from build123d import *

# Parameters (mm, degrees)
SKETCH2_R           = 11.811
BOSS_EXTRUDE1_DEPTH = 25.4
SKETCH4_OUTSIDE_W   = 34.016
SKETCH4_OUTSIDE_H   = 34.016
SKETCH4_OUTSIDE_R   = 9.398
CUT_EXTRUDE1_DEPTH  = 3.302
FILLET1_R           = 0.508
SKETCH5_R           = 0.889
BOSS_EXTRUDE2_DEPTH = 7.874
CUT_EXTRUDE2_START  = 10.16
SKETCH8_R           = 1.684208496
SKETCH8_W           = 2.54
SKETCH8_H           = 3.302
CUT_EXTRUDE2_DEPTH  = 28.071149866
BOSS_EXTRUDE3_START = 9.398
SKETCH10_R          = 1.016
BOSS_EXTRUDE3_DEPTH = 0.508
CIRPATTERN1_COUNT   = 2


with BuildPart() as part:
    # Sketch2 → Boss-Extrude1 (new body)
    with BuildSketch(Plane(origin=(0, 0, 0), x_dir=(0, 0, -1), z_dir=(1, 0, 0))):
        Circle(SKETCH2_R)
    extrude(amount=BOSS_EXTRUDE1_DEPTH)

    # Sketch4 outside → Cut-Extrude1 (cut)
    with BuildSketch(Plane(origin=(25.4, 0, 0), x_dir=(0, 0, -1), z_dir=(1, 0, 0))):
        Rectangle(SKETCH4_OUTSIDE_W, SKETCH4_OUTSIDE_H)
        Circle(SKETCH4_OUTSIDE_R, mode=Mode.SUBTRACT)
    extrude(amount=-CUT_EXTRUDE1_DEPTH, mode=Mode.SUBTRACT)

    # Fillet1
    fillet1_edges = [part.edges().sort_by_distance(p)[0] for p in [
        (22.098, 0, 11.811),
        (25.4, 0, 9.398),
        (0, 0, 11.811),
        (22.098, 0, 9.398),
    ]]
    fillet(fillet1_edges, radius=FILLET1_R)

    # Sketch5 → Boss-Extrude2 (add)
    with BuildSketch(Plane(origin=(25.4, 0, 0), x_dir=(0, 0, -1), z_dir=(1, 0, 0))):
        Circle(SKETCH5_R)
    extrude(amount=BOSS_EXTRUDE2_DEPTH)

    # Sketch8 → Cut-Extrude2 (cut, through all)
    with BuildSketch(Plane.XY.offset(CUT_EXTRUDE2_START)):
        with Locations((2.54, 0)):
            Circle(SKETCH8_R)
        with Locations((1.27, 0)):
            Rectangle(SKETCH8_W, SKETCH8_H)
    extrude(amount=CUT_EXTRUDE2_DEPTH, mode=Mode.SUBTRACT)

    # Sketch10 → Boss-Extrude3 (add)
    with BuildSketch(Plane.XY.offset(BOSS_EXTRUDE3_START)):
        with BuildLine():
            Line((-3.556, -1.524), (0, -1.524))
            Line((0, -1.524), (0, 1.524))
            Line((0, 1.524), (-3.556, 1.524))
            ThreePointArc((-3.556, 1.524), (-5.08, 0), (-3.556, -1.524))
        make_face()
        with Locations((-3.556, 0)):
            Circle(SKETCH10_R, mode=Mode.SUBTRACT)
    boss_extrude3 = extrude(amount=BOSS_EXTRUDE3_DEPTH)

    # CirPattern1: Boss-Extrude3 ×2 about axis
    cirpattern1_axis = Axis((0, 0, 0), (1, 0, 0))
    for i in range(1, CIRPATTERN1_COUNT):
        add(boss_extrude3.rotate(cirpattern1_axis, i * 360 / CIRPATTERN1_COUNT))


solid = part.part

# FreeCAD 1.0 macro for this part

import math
import FreeCAD as App
import Part
import Sketcher

V = App.Vector
Q = App.Units.Quantity


def edges_at(feature, points):
    """Names of the edges that pass closest to the given points."""
    edges = feature.Shape.Edges
    near = lambda p: min(range(len(edges)), key=lambda i: edges[i].distToShape(Part.Vertex(*p))[0])
    return sorted({f"Edge{near(p) + 1}" for p in points})


def add_polygon(sketch, points):
    """Adds a closed chain of lines whose ends are joined by coincident constraints."""
    first, n = sketch.GeometryCount, len(points)
    for a, b in zip(points, points[1:] + points[:1]):
        sketch.addGeometry(Part.LineSegment(App.Vector(*a, 0), App.Vector(*b, 0)), False)
    for i in range(n):
        sketch.addConstraint(Sketcher.Constraint("Coincident", first + i, 2, first + (i + 1) % n, 1))

doc = App.newDocument("Part")
body = doc.addObject("PartDesign::Body", "Body")

sketch1 = body.newObject("Sketcher::SketchObject", "Sketch")
sketch1.AttachmentSupport = (doc.getObject("YZ_Plane"), [""])
sketch1.MapMode = "FlatFace"
sketch1.addGeometry(Part.Circle(V(0, 0, 0), V(0, 0, 1), 11.811), False)
sketch1.addConstraint(Sketcher.Constraint("Coincident", 0, 3, -1, 1))
sketch1.addConstraint(Sketcher.Constraint("Diameter", 0, Q("0.93 in")))
pad1 = body.newObject("PartDesign::Pad", "Pad")
pad1.Profile = sketch1
pad1.Length = Q("1 in")

sketch2 = body.newObject("Sketcher::SketchObject", "Sketch001")
sketch2.AttachmentSupport = (doc.getObject("YZ_Plane"), [""])
sketch2.MapMode = "FlatFace"
sketch2.AttachmentOffset = App.Placement(V(0, 0, 1 * 25.4), App.Rotation())
add_polygon(sketch2, [(17.008, 17.008), (-17.008, 17.008), (-17.008, -17.008), (17.008, -17.008)])
sketch2.addGeometry(Part.Circle(V(0, 0, 0), V(0, 0, 1), 9.398), False)
sketch2.addConstraint(Sketcher.Constraint("Horizontal", 0))
sketch2.addConstraint(Sketcher.Constraint("Vertical", 1))
sketch2.addConstraint(Sketcher.Constraint("Horizontal", 2))
sketch2.addConstraint(Sketcher.Constraint("Vertical", 3))
sketch2.addConstraint(Sketcher.Constraint("Coincident", 4, 3, -1, 1))
sketch2.addConstraint(Sketcher.Constraint("Symmetric", 0, 2, 2, 2, -1, 1))
sketch2.addConstraint(Sketcher.Constraint("Equal", 2, 1))
sketch2.addConstraint(Sketcher.Constraint("Diameter", 4, Q("0.74 in")))
sketch2.addConstraint(Sketcher.Constraint("DistanceX", 0, 2, 0, 1, Q("34.016 mm")))
pocket1 = body.newObject("PartDesign::Pocket", "Pocket")
pocket1.Profile = sketch2
pocket1.Length = Q("0.13 in")
doc.recompute()

fillet = body.newObject("PartDesign::Fillet", "Fillet")
fillet.Base = (pocket1, edges_at(pocket1, [
    (22.098, 0, 11.811),
    (25.4, 0, 9.398),
    (0, 0, 11.811),
    (22.098, 0, 9.398),
]))
fillet.Radius = Q("0.02 in")

sketch3 = body.newObject("Sketcher::SketchObject", "Sketch002")
sketch3.AttachmentSupport = (doc.getObject("YZ_Plane"), [""])
sketch3.MapMode = "FlatFace"
sketch3.AttachmentOffset = App.Placement(V(0, 0, 1 * 25.4), App.Rotation())
sketch3.addGeometry(Part.Circle(V(0, 0, 0), V(0, 0, 1), 0.889), False)
sketch3.addConstraint(Sketcher.Constraint("Coincident", 0, 3, -1, 1))
sketch3.addConstraint(Sketcher.Constraint("Diameter", 0, Q("0.07 in")))
pad2 = body.newObject("PartDesign::Pad", "Pad001")
pad2.Profile = sketch3
pad2.Length = Q("0.31 in")

sketch4 = body.newObject("Sketcher::SketchObject", "Sketch003")
sketch4.AttachmentSupport = (doc.getObject("XY_Plane"), [""])
sketch4.MapMode = "FlatFace"
sketch4.AttachmentOffset = App.Placement(V(0, 0, 0.4 * 25.4), App.Rotation())
sketch4.addGeometry(Part.ArcOfCircle(Part.Circle(V(2.54, 0, 0), V(0, 0, 1), 1.684208), math.radians(-101.396736), math.radians(101.396736)), False)
sketch4.addGeometry(Part.LineSegment(V(2.207198, 1.651, 0), V(0, 1.651, 0)), False)
sketch4.addGeometry(Part.LineSegment(V(0, 1.651, 0), V(0, -1.651, 0)), False)
sketch4.addGeometry(Part.LineSegment(V(0, -1.651, 0), V(2.207198, -1.651, 0)), False)
sketch4.addConstraint(Sketcher.Constraint("Coincident", 0, 2, 1, 1))
sketch4.addConstraint(Sketcher.Constraint("Coincident", 1, 2, 2, 1))
sketch4.addConstraint(Sketcher.Constraint("Coincident", 2, 2, 3, 1))
sketch4.addConstraint(Sketcher.Constraint("Coincident", 3, 2, 0, 1))
sketch4.addConstraint(Sketcher.Constraint("Horizontal", 1))
sketch4.addConstraint(Sketcher.Constraint("Vertical", 2))
sketch4.addConstraint(Sketcher.Constraint("Horizontal", 3))
sketch4.addConstraint(Sketcher.Constraint("Symmetric", 1, 2, 2, 2, -1, 1))
sketch4.addConstraint(Sketcher.Constraint("PointOnObject", 0, 3, -1))
sketch4.addConstraint(Sketcher.Constraint("DistanceY", 2, 2, 2, 1, Q("0.13 in")))
sketch4.addConstraint(Sketcher.Constraint("DistanceX", -1, 1, 0, 3, Q("0.1 in")))
sketch4.addConstraint(Sketcher.Constraint("Radius", 0, Q("1.684208 mm")))
pocket2 = body.newObject("PartDesign::Pocket", "Pocket001")
pocket2.Profile = sketch4
pocket2.Type = "ThroughAll"
pocket2.Reversed = True

sketch5 = body.newObject("Sketcher::SketchObject", "Sketch004")
sketch5.AttachmentSupport = (doc.getObject("XY_Plane"), [""])
sketch5.MapMode = "FlatFace"
sketch5.AttachmentOffset = App.Placement(V(0, 0, 0.37 * 25.4), App.Rotation())
sketch5.addGeometry(Part.LineSegment(V(-3.556, -1.524, 0), V(0, -1.524, 0)), False)
sketch5.addGeometry(Part.LineSegment(V(0, -1.524, 0), V(0, 1.524, 0)), False)
sketch5.addGeometry(Part.LineSegment(V(0, 1.524, 0), V(-3.556, 1.524, 0)), False)
sketch5.addGeometry(Part.ArcOfCircle(Part.Circle(V(-3.556, 0, 0), V(0, 0, 1), 1.524), math.radians(90), math.radians(270)), False)
sketch5.addGeometry(Part.Circle(V(-3.556, 0, 0), V(0, 0, 1), 1.016), False)
sketch5.addConstraint(Sketcher.Constraint("Coincident", 0, 2, 1, 1))
sketch5.addConstraint(Sketcher.Constraint("Coincident", 1, 2, 2, 1))
sketch5.addConstraint(Sketcher.Constraint("Tangent", 2, 2, 3, 1))
sketch5.addConstraint(Sketcher.Constraint("Tangent", 3, 2, 0, 1))
sketch5.addConstraint(Sketcher.Constraint("Horizontal", 0))
sketch5.addConstraint(Sketcher.Constraint("Vertical", 1))
sketch5.addConstraint(Sketcher.Constraint("Horizontal", 2))
sketch5.addConstraint(Sketcher.Constraint("Coincident", 4, 3, 3, 3))
sketch5.addConstraint(Sketcher.Constraint("Symmetric", 0, 2, 1, 2, -1, 1))
sketch5.addConstraint(Sketcher.Constraint("Diameter", 4, Q("0.08 in")))
sketch5.addConstraint(Sketcher.Constraint("Radius", 3, Q("0.06 in")))
sketch5.addConstraint(Sketcher.Constraint("DistanceX", 0, 1, 0, 2, Q("0.14 in")))
pad3 = body.newObject("PartDesign::Pad", "Pad002")
pad3.Profile = sketch5
pad3.Length = Q("0.02 in")
doc.recompute()

polarpattern = body.newObject("PartDesign::PolarPattern", "PolarPattern")
polarpattern.Originals = [pad3]
polarpattern.Axis = (doc.getObject("X_Axis"), [""])
polarpattern.Angle = 360
polarpattern.Occurrences = 2
body.Tip = polarpattern

doc.recompute()
